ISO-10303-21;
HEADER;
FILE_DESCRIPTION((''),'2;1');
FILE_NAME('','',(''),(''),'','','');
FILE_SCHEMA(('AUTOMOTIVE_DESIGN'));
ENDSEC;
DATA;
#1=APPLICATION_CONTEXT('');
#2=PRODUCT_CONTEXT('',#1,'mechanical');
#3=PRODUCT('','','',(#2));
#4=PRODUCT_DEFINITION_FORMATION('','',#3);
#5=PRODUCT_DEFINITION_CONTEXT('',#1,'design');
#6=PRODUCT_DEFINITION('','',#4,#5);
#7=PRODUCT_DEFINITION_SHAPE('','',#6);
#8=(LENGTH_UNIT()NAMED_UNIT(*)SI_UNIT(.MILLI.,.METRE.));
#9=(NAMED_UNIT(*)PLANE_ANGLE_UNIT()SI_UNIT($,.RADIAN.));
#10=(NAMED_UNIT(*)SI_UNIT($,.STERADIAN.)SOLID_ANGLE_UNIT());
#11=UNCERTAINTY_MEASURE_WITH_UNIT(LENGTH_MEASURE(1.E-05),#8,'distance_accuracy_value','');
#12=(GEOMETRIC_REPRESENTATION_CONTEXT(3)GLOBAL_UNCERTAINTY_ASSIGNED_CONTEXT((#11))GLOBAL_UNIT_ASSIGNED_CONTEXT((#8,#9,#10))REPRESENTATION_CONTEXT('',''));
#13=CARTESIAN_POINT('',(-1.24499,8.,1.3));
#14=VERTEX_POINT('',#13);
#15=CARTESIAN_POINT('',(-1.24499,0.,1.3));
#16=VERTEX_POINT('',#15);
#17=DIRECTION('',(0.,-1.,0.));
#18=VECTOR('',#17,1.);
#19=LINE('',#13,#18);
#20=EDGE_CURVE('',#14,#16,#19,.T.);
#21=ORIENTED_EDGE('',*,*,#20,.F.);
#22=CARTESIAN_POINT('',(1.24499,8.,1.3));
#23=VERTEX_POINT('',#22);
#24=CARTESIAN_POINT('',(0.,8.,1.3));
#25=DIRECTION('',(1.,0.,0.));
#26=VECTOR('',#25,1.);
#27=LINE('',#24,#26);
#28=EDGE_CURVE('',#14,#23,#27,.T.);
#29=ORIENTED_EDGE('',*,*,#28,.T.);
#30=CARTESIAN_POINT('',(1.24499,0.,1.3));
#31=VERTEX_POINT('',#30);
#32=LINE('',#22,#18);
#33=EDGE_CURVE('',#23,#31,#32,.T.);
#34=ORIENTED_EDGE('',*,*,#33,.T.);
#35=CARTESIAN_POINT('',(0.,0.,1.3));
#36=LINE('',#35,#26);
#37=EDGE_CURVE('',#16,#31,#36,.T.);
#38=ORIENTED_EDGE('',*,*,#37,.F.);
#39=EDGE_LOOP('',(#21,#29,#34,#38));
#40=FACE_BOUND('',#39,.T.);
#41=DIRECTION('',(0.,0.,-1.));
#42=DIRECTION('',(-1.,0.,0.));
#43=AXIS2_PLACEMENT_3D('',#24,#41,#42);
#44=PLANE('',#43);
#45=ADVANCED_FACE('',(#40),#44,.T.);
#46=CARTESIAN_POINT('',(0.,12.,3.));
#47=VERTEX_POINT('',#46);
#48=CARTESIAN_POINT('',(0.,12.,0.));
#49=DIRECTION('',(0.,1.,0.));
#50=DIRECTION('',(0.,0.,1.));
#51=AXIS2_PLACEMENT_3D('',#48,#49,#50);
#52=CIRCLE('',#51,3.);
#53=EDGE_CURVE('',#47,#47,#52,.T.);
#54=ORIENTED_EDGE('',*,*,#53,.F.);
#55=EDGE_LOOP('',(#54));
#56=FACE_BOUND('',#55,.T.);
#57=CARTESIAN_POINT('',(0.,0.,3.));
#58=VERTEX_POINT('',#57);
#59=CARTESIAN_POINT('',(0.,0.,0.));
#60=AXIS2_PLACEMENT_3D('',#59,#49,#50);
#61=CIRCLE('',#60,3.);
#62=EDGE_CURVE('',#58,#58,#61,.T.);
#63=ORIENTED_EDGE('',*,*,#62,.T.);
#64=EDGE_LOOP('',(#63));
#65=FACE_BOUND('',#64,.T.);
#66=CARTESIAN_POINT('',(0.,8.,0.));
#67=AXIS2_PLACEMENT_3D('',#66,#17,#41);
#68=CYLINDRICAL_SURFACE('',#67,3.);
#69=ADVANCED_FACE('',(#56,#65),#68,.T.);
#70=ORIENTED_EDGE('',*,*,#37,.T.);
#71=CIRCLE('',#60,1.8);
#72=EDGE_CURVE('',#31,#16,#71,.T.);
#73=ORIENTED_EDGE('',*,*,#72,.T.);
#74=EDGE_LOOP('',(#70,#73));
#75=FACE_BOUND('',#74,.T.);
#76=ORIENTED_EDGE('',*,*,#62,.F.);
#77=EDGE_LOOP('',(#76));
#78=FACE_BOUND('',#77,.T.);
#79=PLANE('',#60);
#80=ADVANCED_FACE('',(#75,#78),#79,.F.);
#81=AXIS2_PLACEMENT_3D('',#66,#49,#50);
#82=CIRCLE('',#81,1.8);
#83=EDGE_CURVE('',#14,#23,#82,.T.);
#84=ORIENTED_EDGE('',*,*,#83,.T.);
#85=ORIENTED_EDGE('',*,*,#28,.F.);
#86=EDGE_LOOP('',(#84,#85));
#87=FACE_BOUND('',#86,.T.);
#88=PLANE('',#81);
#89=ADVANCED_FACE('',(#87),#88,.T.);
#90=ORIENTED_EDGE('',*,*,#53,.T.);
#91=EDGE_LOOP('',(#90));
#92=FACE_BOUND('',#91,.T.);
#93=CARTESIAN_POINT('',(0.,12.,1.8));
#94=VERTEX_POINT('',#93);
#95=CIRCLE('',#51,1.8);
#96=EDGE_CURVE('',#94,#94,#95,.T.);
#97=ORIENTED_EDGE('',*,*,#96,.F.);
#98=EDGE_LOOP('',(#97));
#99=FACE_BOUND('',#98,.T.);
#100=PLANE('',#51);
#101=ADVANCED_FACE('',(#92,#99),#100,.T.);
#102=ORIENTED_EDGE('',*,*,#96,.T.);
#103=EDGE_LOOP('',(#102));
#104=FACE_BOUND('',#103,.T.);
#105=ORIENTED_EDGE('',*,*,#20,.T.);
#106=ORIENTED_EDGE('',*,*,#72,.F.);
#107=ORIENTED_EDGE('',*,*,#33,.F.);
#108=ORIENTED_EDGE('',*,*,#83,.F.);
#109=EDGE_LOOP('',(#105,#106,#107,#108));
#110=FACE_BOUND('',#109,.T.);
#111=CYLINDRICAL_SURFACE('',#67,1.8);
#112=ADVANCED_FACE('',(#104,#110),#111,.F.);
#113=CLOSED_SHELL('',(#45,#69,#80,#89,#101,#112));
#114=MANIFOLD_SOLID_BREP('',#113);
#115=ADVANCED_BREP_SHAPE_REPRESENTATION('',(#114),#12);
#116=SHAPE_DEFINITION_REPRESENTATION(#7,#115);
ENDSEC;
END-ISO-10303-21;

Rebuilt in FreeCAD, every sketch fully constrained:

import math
import FreeCAD as App
import Part
import Sketcher
from FreeCAD import Vector
Q = App.Units.Quantity

doc = App.newDocument("Part")
params = doc.addObject("Spreadsheet::Sheet", "Params")
for row, (alias, value) in enumerate([
    ("sketch1_diameter", "6 mm"),
    ("sketch1_radius", "1.8 mm"),
    ("pad1_length", "8 mm"),
    ("sketch2_diameter", "6 mm"),
    ("sketch2_diameter2", "3.6 mm"),
    ("pad2_length", "4 mm"),
], start=1):
    params.set(f"A{row}", alias)
    params.set(f"B{row}", "=" + value)
    params.setAlias(f"B{row}", alias)

body = doc.addObject("PartDesign::Body", "Body")

# Sketch on XZ plane
sketch1 = body.newObject("Sketcher::SketchObject", "Sketch")
sketch1.AttachmentSupport = (doc.getObject("XZ_Plane"), [""])
sketch1.MapMode = "FlatFace"
sketch1.addGeometry([
    Part.Circle(Vector(0, 0, 0), Vector(0, 0, 1), 3),
    Part.ArcOfCircle(Part.Circle(Vector(0, 0, 0), Vector(0, 0, 1), 1.8), math.radians(134), math.radians(406)),
    Part.LineSegment(Vector(1.2, 1.3, 0), Vector(-1.2, 1.3, 0)),
], False)
sketch1.addConstraint([
    Sketcher.Constraint("Coincident", 1, 1, 2, 2),
    Sketcher.Constraint("Coincident", 2, 1, 1, 2),
    Sketcher.Constraint("Horizontal", 2),
    Sketcher.Constraint("Coincident", 0, 3, -1, 1),
    Sketcher.Constraint("Coincident", 1, 3, -1, 1),
    Sketcher.Constraint("Diameter", 0, Q("6 mm")),
    Sketcher.Constraint("Radius", 1, Q("1.8 mm")),
    Sketcher.Constraint("DistanceY", -1, 1, 1, 1, Q("1.3 mm")),
])
sketch1.setExpression("Constraints[5]", "Params.sketch1_diameter")
sketch1.setExpression("Constraints[6]", "Params.sketch1_radius")
pad1 = body.newObject("PartDesign::Pad", "Pad")
pad1.Profile = sketch1
pad1.setExpression("Length", "Params.pad1_length")
pad1.Reversed = True

# Sketch on XZ plane
sketch2 = body.newObject("Sketcher::SketchObject", "Sketch001")
sketch2.AttachmentSupport = (doc.getObject("XZ_Plane"), [""])
sketch2.MapMode = "FlatFace"
sketch2.AttachmentOffset = App.Placement(Vector(0, 0, -8), App.Rotation())
sketch2.addGeometry([
    Part.Circle(Vector(0, 0, 0), Vector(0, 0, 1), 3),
    Part.Circle(Vector(0, 0, 0), Vector(0, 0, 1), 1.8),
], False)
sketch2.addConstraint([
    Sketcher.Constraint("Coincident", 0, 3, -1, 1),
    Sketcher.Constraint("Coincident", 1, 3, -1, 1),
    Sketcher.Constraint("Diameter", 0, Q("6 mm")),
    Sketcher.Constraint("Diameter", 1, Q("3.6 mm")),
])
sketch2.setExpression("Constraints[2]", "Params.sketch2_diameter")
sketch2.setExpression("Constraints[3]", "Params.sketch2_diameter2")
pad2 = body.newObject("PartDesign::Pad", "Pad001")
pad2.Profile = sketch2
pad2.setExpression("Length", "Params.pad2_length")
pad2.Reversed = True

doc.recompute()
